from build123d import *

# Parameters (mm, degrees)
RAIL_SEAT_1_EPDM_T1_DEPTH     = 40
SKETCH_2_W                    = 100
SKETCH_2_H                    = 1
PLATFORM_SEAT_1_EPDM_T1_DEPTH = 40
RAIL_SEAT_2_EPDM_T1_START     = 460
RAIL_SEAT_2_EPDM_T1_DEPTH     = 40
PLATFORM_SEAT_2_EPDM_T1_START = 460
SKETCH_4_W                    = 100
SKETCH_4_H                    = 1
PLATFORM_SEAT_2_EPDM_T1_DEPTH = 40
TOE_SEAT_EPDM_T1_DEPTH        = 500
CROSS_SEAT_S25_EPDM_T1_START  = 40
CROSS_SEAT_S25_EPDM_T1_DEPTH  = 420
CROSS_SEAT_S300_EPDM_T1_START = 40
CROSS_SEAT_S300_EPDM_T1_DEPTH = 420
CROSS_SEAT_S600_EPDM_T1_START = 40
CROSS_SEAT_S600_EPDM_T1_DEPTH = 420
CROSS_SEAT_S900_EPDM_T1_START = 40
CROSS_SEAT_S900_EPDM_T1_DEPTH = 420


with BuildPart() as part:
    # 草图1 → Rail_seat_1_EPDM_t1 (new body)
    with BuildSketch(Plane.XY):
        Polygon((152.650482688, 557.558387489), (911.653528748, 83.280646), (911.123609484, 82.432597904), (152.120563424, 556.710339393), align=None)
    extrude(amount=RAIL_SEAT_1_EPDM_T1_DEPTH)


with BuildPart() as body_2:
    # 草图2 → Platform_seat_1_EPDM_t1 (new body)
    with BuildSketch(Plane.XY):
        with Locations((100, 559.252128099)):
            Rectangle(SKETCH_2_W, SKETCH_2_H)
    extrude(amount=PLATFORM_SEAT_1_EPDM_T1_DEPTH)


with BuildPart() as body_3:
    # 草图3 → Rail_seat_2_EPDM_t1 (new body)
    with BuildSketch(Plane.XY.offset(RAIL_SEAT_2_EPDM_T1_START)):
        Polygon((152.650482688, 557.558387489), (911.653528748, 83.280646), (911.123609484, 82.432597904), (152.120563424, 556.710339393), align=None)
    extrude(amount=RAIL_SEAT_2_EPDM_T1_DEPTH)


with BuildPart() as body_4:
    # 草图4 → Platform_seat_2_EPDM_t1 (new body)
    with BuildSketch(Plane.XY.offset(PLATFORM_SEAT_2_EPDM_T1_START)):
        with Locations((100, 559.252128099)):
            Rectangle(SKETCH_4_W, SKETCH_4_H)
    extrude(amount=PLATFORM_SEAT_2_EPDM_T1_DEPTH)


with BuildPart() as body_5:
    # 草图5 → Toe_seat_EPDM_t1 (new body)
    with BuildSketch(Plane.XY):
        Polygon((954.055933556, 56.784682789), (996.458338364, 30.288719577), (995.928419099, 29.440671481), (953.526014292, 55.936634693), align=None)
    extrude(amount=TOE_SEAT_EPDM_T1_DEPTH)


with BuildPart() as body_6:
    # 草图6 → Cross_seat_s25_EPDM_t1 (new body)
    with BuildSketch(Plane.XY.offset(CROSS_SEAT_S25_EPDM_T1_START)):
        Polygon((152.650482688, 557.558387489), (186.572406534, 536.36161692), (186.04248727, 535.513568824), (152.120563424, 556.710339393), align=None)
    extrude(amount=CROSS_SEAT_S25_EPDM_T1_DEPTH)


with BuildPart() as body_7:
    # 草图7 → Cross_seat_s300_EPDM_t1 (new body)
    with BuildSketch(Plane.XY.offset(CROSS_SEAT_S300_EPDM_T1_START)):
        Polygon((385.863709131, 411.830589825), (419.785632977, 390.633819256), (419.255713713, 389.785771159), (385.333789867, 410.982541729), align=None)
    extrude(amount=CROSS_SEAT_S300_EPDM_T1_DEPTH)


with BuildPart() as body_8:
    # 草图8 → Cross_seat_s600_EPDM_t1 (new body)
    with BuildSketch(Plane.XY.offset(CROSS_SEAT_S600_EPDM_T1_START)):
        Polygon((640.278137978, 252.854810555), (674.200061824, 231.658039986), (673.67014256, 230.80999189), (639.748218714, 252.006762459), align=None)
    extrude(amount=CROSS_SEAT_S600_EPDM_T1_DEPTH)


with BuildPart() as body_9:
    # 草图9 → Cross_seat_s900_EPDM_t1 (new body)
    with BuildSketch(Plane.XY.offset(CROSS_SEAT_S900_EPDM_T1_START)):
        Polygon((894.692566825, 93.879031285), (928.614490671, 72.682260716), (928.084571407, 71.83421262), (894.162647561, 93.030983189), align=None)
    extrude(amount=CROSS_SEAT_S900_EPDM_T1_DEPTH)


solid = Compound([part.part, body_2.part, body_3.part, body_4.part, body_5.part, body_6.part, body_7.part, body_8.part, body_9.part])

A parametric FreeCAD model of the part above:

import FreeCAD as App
import Part
import Sketcher
from FreeCAD import Vector
Q = App.Units.Quantity

doc = App.newDocument("Part")
params = doc.addObject("Spreadsheet::Sheet", "Params")
for row, (alias, value) in enumerate([
    ("sketch1_length", "895 mm"),
    ("sketch1_length2", "1 mm"),
    ("pad1_length", "40 mm"),
    ("sketch2_width", "100 mm"),
    ("sketch2_height", "1 mm"),
    ("pad2_length", "40 mm"),
    ("sketch3_length", "895 mm"),
    ("sketch3_length2", "1 mm"),
    ("pad3_length", "40 mm"),
    ("sketch4_width", "100 mm"),
    ("sketch4_height", "1 mm"),
    ("pad4_length", "40 mm"),
    ("sketch5_length", "50 mm"),
    ("sketch5_length2", "1 mm"),
    ("pad5_length", "500 mm"),
    ("sketch6_length", "40 mm"),
    ("sketch6_length2", "1 mm"),
    ("pad6_length", "420 mm"),
    ("sketch7_length", "40 mm"),
    ("sketch7_length2", "1 mm"),
    ("pad7_length", "420 mm"),
    ("sketch8_length", "40 mm"),
    ("sketch8_length2", "1 mm"),
    ("pad8_length", "420 mm"),
    ("sketch9_length", "40 mm"),
    ("sketch9_length2", "1 mm"),
    ("pad9_length", "420 mm"),
], start=1):
    params.set(f"A{row}", alias)
    params.set(f"B{row}", "=" + value)
    params.setAlias(f"B{row}", alias)

body = doc.addObject("PartDesign::Body", "Body")

sketch1 = body.newObject("Sketcher::SketchObject", "Sketch")
sketch1.AttachmentSupport = (doc.getObject("XY_Plane"), [""])
sketch1.MapMode = "FlatFace"
sketch1.addGeometry([
    Part.LineSegment(Vector(911.653529, 83.280646, 0), Vector(152.650483, 557.558387, 0)),
    Part.LineSegment(Vector(152.650483, 557.558387, 0), Vector(152.120563, 556.710339, 0)),
    Part.LineSegment(Vector(152.120563, 556.710339, 0), Vector(911.123609, 82.432598, 0)),
    Part.LineSegment(Vector(911.123609, 82.432598, 0), Vector(911.653529, 83.280646, 0)),
], False)
sketch1.addConstraint([
    Sketcher.Constraint("Coincident", 0, 2, 1, 1),
    Sketcher.Constraint("Coincident", 1, 2, 2, 1),
    Sketcher.Constraint("Coincident", 2, 2, 3, 1),
    Sketcher.Constraint("Coincident", 3, 2, 0, 1),
    Sketcher.Constraint("Perpendicular", 0, 1),
    Sketcher.Constraint("Parallel", 0, 2),
    Sketcher.Constraint("Perpendicular", 2, 3),
    Sketcher.Constraint("Angle", 0, Q("148 deg")),
    Sketcher.Constraint("Distance", 0, 895.0),
    Sketcher.Constraint("Distance", 1, 1.0),
    Sketcher.Constraint("DistanceY", -1, 1, 1, 2, 556.710339),
    Sketcher.Constraint("DistanceX", -1, 1, 2, 2, 911.123609),
])
sketch1.setExpression("Constraints[8]", "Params.sketch1_length")
sketch1.setExpression("Constraints[9]", "Params.sketch1_length2")
pad1 = body.newObject("PartDesign::Pad", "Pad")
pad1.Profile = sketch1
pad1.setExpression("Length", "Params.pad1_length")
body2 = doc.addObject("PartDesign::Body", "Body001")

sketch2 = body2.newObject("Sketcher::SketchObject", "Sketch001")
sketch2.AttachmentSupport = (doc.getObject("XY_Plane001"), [""])
sketch2.MapMode = "FlatFace"
sketch2.addGeometry([
    Part.LineSegment(Vector(50, 559.752128, 0), Vector(50, 558.752128, 0)),
    Part.LineSegment(Vector(50, 558.752128, 0), Vector(150, 558.752128, 0)),
    Part.LineSegment(Vector(150, 558.752128, 0), Vector(150, 559.752128, 0)),
    Part.LineSegment(Vector(150, 559.752128, 0), Vector(50, 559.752128, 0)),
], False)
sketch2.addConstraint([
    Sketcher.Constraint("Coincident", 0, 2, 1, 1),
    Sketcher.Constraint("Coincident", 1, 2, 2, 1),
    Sketcher.Constraint("Coincident", 2, 2, 3, 1),
    Sketcher.Constraint("Coincident", 3, 2, 0, 1),
    Sketcher.Constraint("Vertical", 0),
    Sketcher.Constraint("Horizontal", 1),
    Sketcher.Constraint("Vertical", 2),
    Sketcher.Constraint("Horizontal", 3),
    Sketcher.Constraint("DistanceX", 1, 1, 1, 2, 100.0),
    Sketcher.Constraint("DistanceY", 0, 2, 0, 1, 1.0),
    Sketcher.Constraint("DistanceX", -1, 1, 0, 2, 50.0),
    Sketcher.Constraint("DistanceY", -1, 1, 0, 2, 558.752128),
])
sketch2.setExpression("Constraints[8]", "Params.sketch2_width")
sketch2.setExpression("Constraints[9]", "Params.sketch2_height")
pad2 = body2.newObject("PartDesign::Pad", "Pad001")
pad2.Profile = sketch2
pad2.setExpression("Length", "Params.pad2_length")
body3 = doc.addObject("PartDesign::Body", "Body002")

sketch3 = body3.newObject("Sketcher::SketchObject", "Sketch002")
sketch3.AttachmentSupport = (doc.getObject("XY_Plane002"), [""])
sketch3.MapMode = "FlatFace"
sketch3.AttachmentOffset = App.Placement(Vector(0, 0, 460), App.Rotation())
sketch3.addGeometry([
    Part.LineSegment(Vector(911.653529, 83.280646, 0), Vector(152.650483, 557.558387, 0)),
    Part.LineSegment(Vector(152.650483, 557.558387, 0), Vector(152.120563, 556.710339, 0)),
    Part.LineSegment(Vector(152.120563, 556.710339, 0), Vector(911.123609, 82.432598, 0)),
    Part.LineSegment(Vector(911.123609, 82.432598, 0), Vector(911.653529, 83.280646, 0)),
], False)
sketch3.addConstraint([
    Sketcher.Constraint("Coincident", 0, 2, 1, 1),
    Sketcher.Constraint("Coincident", 1, 2, 2, 1),
    Sketcher.Constraint("Coincident", 2, 2, 3, 1),
    Sketcher.Constraint("Coincident", 3, 2, 0, 1),
    Sketcher.Constraint("Perpendicular", 0, 1),
    Sketcher.Constraint("Parallel", 0, 2),
    Sketcher.Constraint("Perpendicular", 2, 3),
    Sketcher.Constraint("Angle", 0, Q("148 deg")),
    Sketcher.Constraint("Distance", 0, 895.0),
    Sketcher.Constraint("Distance", 1, 1.0),
    Sketcher.Constraint("DistanceY", -1, 1, 1, 2, 556.710339),
    Sketcher.Constraint("DistanceX", -1, 1, 2, 2, 911.123609),
])
sketch3.setExpression("Constraints[8]", "Params.sketch3_length")
sketch3.setExpression("Constraints[9]", "Params.sketch3_length2")
pad3 = body3.newObject("PartDesign::Pad", "Pad002")
pad3.Profile = sketch3
pad3.setExpression("Length", "Params.pad3_length")
body4 = doc.addObject("PartDesign::Body", "Body003")

sketch4 = body4.newObject("Sketcher::SketchObject", "Sketch003")
sketch4.AttachmentSupport = (doc.getObject("XY_Plane003"), [""])
sketch4.MapMode = "FlatFace"
sketch4.AttachmentOffset = App.Placement(Vector(0, 0, 460), App.Rotation())
sketch4.addGeometry([
    Part.LineSegment(Vector(50, 559.752128, 0), Vector(50, 558.752128, 0)),
    Part.LineSegment(Vector(50, 558.752128, 0), Vector(150, 558.752128, 0)),
    Part.LineSegment(Vector(150, 558.752128, 0), Vector(150, 559.752128, 0)),
    Part.LineSegment(Vector(150, 559.752128, 0), Vector(50, 559.752128, 0)),
], False)
sketch4.addConstraint([
    Sketcher.Constraint("Coincident", 0, 2, 1, 1),
    Sketcher.Constraint("Coincident", 1, 2, 2, 1),
    Sketcher.Constraint("Coincident", 2, 2, 3, 1),
    Sketcher.Constraint("Coincident", 3, 2, 0, 1),
    Sketcher.Constraint("Vertical", 0),
    Sketcher.Constraint("Horizontal", 1),
    Sketcher.Constraint("Vertical", 2),
    Sketcher.Constraint("Horizontal", 3),
    Sketcher.Constraint("DistanceX", 1, 1, 1, 2, 100.0),
    Sketcher.Constraint("DistanceY", 0, 2, 0, 1, 1.0),
    Sketcher.Constraint("DistanceX", -1, 1, 0, 2, 50.0),
    Sketcher.Constraint("DistanceY", -1, 1, 0, 2, 558.752128),
])
sketch4.setExpression("Constraints[8]", "Params.sketch4_width")
sketch4.setExpression("Constraints[9]", "Params.sketch4_height")
pad4 = body4.newObject("PartDesign::Pad", "Pad003")
pad4.Profile = sketch4
pad4.setExpression("Length", "Params.pad4_length")
body5 = doc.addObject("PartDesign::Body", "Body004")

sketch5 = body5.newObject("Sketcher::SketchObject", "Sketch004")
sketch5.AttachmentSupport = (doc.getObject("XY_Plane004"), [""])
sketch5.MapMode = "FlatFace"
sketch5.addGeometry([
    Part.LineSegment(Vector(996.458338, 30.28872, 0), Vector(954.055934, 56.784683, 0)),
    Part.LineSegment(Vector(954.055934, 56.784683, 0), Vector(953.526014, 55.936635, 0)),
    Part.LineSegment(Vector(953.526014, 55.936635, 0), Vector(995.928419, 29.440671, 0)),
    Part.LineSegment(Vector(995.928419, 29.440671, 0), Vector(996.458338, 30.28872, 0)),
], False)
sketch5.addConstraint([
    Sketcher.Constraint("Coincident", 0, 2, 1, 1),
    Sketcher.Constraint("Coincident", 1, 2, 2, 1),
    Sketcher.Constraint("Coincident", 2, 2, 3, 1),
    Sketcher.Constraint("Coincident", 3, 2, 0, 1),
    Sketcher.Constraint("Perpendicular", 0, 1),
    Sketcher.Constraint("Perpendicular", 1, 2),
    Sketcher.Constraint("Perpendicular", 2, 3),
    Sketcher.Constraint("Angle", 0, Q("148 deg")),
    Sketcher.Constraint("Distance", 0, 50.0),
    Sketcher.Constraint("Distance", 1, 1.0),
    Sketcher.Constraint("DistanceX", -1, 1, 2, 2, 995.928419),
    Sketcher.Constraint("DistanceY", -1, 1, 2, 2, 29.440671),
])
sketch5.setExpression("Constraints[8]", "Params.sketch5_length")
sketch5.setExpression("Constraints[9]", "Params.sketch5_length2")
pad5 = body5.newObject("PartDesign::Pad", "Pad004")
pad5.Profile = sketch5
pad5.setExpression("Length", "Params.pad5_length")
body6 = doc.addObject("PartDesign::Body", "Body005")

sketch6 = body6.newObject("Sketcher::SketchObject", "Sketch005")
sketch6.AttachmentSupport = (doc.getObject("XY_Plane005"), [""])
sketch6.MapMode = "FlatFace"
sketch6.AttachmentOffset = App.Placement(Vector(0, 0, 40), App.Rotation())
sketch6.addGeometry([
    Part.LineSegment(Vector(186.572407, 536.361617, 0), Vector(152.650483, 557.558387, 0)),
    Part.LineSegment(Vector(152.650483, 557.558387, 0), Vector(152.120563, 556.710339, 0)),
    Part.LineSegment(Vector(152.120563, 556.710339, 0), Vector(186.042487, 535.513569, 0)),
    Part.LineSegment(Vector(186.042487, 535.513569, 0), Vector(186.572407, 536.361617, 0)),
], False)
sketch6.addConstraint([
    Sketcher.Constraint("Coincident", 0, 2, 1, 1),
    Sketcher.Constraint("Coincident", 1, 2, 2, 1),
    Sketcher.Constraint("Coincident", 2, 2, 3, 1),
    Sketcher.Constraint("Coincident", 3, 2, 0, 1),
    Sketcher.Constraint("Perpendicular", 0, 1),
    Sketcher.Constraint("Perpendicular", 1, 2),
    Sketcher.Constraint("Perpendicular", 2, 3),
    Sketcher.Constraint("Angle", 0, Q("148 deg")),
    Sketcher.Constraint("Distance", 0, 40.0),
    Sketcher.Constraint("Distance", 1, 1.0),
    Sketcher.Constraint("DistanceY", -1, 1, 1, 2, 556.710339),
    Sketcher.Constraint("DistanceX", -1, 1, 0, 2, 152.650483),
])
sketch6.setExpression("Constraints[8]", "Params.sketch6_length")
sketch6.setExpression("Constraints[9]", "Params.sketch6_length2")
pad6 = body6.newObject("PartDesign::Pad", "Pad005")
pad6.Profile = sketch6
pad6.setExpression("Length", "Params.pad6_length")
body7 = doc.addObject("PartDesign::Body", "Body006")

sketch7 = body7.newObject("Sketcher::SketchObject", "Sketch006")
sketch7.AttachmentSupport = (doc.getObject("XY_Plane006"), [""])
sketch7.MapMode = "FlatFace"
sketch7.AttachmentOffset = App.Placement(Vector(0, 0, 40), App.Rotation())
sketch7.addGeometry([
    Part.LineSegment(Vector(419.785633, 390.633819, 0), Vector(385.863709, 411.83059, 0)),
    Part.LineSegment(Vector(385.863709, 411.83059, 0), Vector(385.33379, 410.982542, 0)),
    Part.LineSegment(Vector(385.33379, 410.982542, 0), Vector(419.255714, 389.785771, 0)),
    Part.LineSegment(Vector(419.255714, 389.785771, 0), Vector(419.785633, 390.633819, 0)),
], False)
sketch7.addConstraint([
    Sketcher.Constraint("Coincident", 0, 2, 1, 1),
    Sketcher.Constraint("Coincident", 1, 2, 2, 1),
    Sketcher.Constraint("Coincident", 2, 2, 3, 1),
    Sketcher.Constraint("Coincident", 3, 2, 0, 1),
    Sketcher.Constraint("Perpendicular", 0, 1),
    Sketcher.Constraint("Perpendicular", 1, 2),
    Sketcher.Constraint("Perpendicular", 2, 3),
    Sketcher.Constraint("Angle", 0, Q("148 deg")),
    Sketcher.Constraint("Distance", 0, 40.0),
    Sketcher.Constraint("Distance", 1, 1.0),
    Sketcher.Constraint("DistanceX", -1, 1, 0, 2, 385.863709),
    Sketcher.Constraint("DistanceY", -1, 1, 0, 2, 411.83059),
])
sketch7.setExpression("Constraints[8]", "Params.sketch7_length")
sketch7.setExpression("Constraints[9]", "Params.sketch7_length2")
pad7 = body7.newObject("PartDesign::Pad", "Pad006")
pad7.Profile = sketch7
pad7.setExpression("Length", "Params.pad7_length")
body8 = doc.addObject("PartDesign::Body", "Body007")

sketch8 = body8.newObject("Sketcher::SketchObject", "Sketch007")
sketch8.AttachmentSupport = (doc.getObject("XY_Plane007"), [""])
sketch8.MapMode = "FlatFace"
sketch8.AttachmentOffset = App.Placement(Vector(0, 0, 40), App.Rotation())
sketch8.addGeometry([
    Part.LineSegment(Vector(674.200062, 231.65804, 0), Vector(640.278138, 252.854811, 0)),
    Part.LineSegment(Vector(640.278138, 252.854811, 0), Vector(639.748219, 252.006762, 0)),
    Part.LineSegment(Vector(639.748219, 252.006762, 0), Vector(673.670143, 230.809992, 0)),
    Part.LineSegment(Vector(673.670143, 230.809992, 0), Vector(674.200062, 231.65804, 0)),
], False)
sketch8.addConstraint([
    Sketcher.Constraint("Coincident", 0, 2, 1, 1),
    Sketcher.Constraint("Coincident", 1, 2, 2, 1),
    Sketcher.Constraint("Coincident", 2, 2, 3, 1),
    Sketcher.Constraint("Coincident", 3, 2, 0, 1),
    Sketcher.Constraint("Perpendicular", 0, 1),
    Sketcher.Constraint("Perpendicular", 1, 2),
    Sketcher.Constraint("Perpendicular", 2, 3),
    Sketcher.Constraint("Angle", 0, Q("148 deg")),
    Sketcher.Constraint("Distance", 0, 40.0),
    Sketcher.Constraint("Distance", 1, 1.0),
    Sketcher.Constraint("DistanceY", -1, 1, 0, 2, 252.854811),
    Sketcher.Constraint("DistanceX", -1, 1, 1, 2, 639.748219),
])
sketch8.setExpression("Constraints[8]", "Params.sketch8_length")
sketch8.setExpression("Constraints[9]", "Params.sketch8_length2")
pad8 = body8.newObject("PartDesign::Pad", "Pad007")
pad8.Profile = sketch8
pad8.setExpression("Length", "Params.pad8_length")
body9 = doc.addObject("PartDesign::Body", "Body008")

sketch9 = body9.newObject("Sketcher::SketchObject", "Sketch008")
sketch9.AttachmentSupport = (doc.getObject("XY_Plane008"), [""])
sketch9.MapMode = "FlatFace"
sketch9.AttachmentOffset = App.Placement(Vector(0, 0, 40), App.Rotation())
sketch9.addGeometry([
    Part.LineSegment(Vector(928.614491, 72.682261, 0), Vector(894.692567, 93.879031, 0)),
    Part.LineSegment(Vector(894.692567, 93.879031, 0), Vector(894.162648, 93.030983, 0)),
    Part.LineSegment(Vector(894.162648, 93.030983, 0), Vector(928.084571, 71.834213, 0)),
    Part.LineSegment(Vector(928.084571, 71.834213, 0), Vector(928.614491, 72.682261, 0)),
], False)
sketch9.addConstraint([
    Sketcher.Constraint("Coincident", 0, 2, 1, 1),
    Sketcher.Constraint("Coincident", 1, 2, 2, 1),
    Sketcher.Constraint("Coincident", 2, 2, 3, 1),
    Sketcher.Constraint("Coincident", 3, 2, 0, 1),
    Sketcher.Constraint("Perpendicular", 0, 1),
    Sketcher.Constraint("Perpendicular", 1, 2),
    Sketcher.Constraint("Perpendicular", 2, 3),
    Sketcher.Constraint("Angle", 0, Q("148 deg")),
    Sketcher.Constraint("Distance", 0, 40.0),
    Sketcher.Constraint("Distance", 1, 1.0),
    Sketcher.Constraint("DistanceY", -1, 1, 0, 2, 93.879031),
    Sketcher.Constraint("DistanceX", -1, 1, 2, 2, 928.084571),
])
sketch9.setExpression("Constraints[8]", "Params.sketch9_length")
sketch9.setExpression("Constraints[9]", "Params.sketch9_length2")
pad9 = body9.newObject("PartDesign::Pad", "Pad008")
pad9.Profile = sketch9
pad9.setExpression("Length", "Params.pad9_length")

doc.recompute()
